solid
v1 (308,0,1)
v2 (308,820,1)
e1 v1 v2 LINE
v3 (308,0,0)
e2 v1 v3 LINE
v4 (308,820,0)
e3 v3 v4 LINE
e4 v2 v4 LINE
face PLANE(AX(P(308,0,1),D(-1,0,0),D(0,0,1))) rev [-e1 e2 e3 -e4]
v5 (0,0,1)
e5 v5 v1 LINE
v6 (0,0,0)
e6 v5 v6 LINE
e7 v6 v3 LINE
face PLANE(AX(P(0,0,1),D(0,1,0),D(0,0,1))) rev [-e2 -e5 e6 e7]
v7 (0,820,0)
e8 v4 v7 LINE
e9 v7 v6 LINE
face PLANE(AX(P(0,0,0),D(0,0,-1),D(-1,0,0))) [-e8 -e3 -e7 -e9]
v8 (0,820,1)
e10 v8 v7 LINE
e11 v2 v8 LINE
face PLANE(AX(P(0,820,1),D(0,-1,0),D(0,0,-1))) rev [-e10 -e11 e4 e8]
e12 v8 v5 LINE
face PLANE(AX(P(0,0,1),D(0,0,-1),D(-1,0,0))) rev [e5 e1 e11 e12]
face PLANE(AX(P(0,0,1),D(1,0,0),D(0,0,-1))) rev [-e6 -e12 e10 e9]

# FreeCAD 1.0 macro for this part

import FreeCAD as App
import Part
import Sketcher

doc = App.newDocument("Part")
params = doc.addObject("Spreadsheet::Sheet", "Params")
for row, (alias, value) in enumerate([
    ("sketch1_width", "308 mm"),
    ("sketch1_height", "820 mm"),
    ("pad1_length", "1 mm"),
], start=1):
    params.set(f"A{row}", alias)
    params.set(f"B{row}", "=" + value)
    params.setAlias(f"B{row}", alias)

body = doc.addObject("PartDesign::Body", "Body")

sketch1 = doc.addObject("Sketcher::SketchObject", "Sketch")
body.addObject(sketch1)
sketch1.AttachmentSupport = (doc.XY_Plane, [""])
sketch1.MapMode = "FlatFace"
sketch1.addGeometry(Part.LineSegment(App.Vector(0, 820, 0), App.Vector(0, 0, 0)), False)
sketch1.addGeometry(Part.LineSegment(App.Vector(0, 0, 0), App.Vector(308, 0, 0)), False)
sketch1.addGeometry(Part.LineSegment(App.Vector(308, 0, 0), App.Vector(308, 820, 0)), False)
sketch1.addGeometry(Part.LineSegment(App.Vector(308, 820, 0), App.Vector(0, 820, 0)), False)
sketch1.addConstraint(Sketcher.Constraint("Coincident", 0, 2, 1, 1))
sketch1.addConstraint(Sketcher.Constraint("Coincident", 1, 2, 2, 1))
sketch1.addConstraint(Sketcher.Constraint("Coincident", 2, 2, 3, 1))
sketch1.addConstraint(Sketcher.Constraint("Coincident", 3, 2, 0, 1))
sketch1.addConstraint(Sketcher.Constraint("Vertical", 0))
sketch1.addConstraint(Sketcher.Constraint("Horizontal", 1))
sketch1.addConstraint(Sketcher.Constraint("Vertical", 2))
sketch1.addConstraint(Sketcher.Constraint("Horizontal", 3))
sketch1.addConstraint(Sketcher.Constraint("Coincident", 0, 2, -1, 1))
sketch1.addConstraint(Sketcher.Constraint("DistanceX", 1, 1, 1, 2, 308.0))
sketch1.addConstraint(Sketcher.Constraint("DistanceY", 0, 2, 0, 1, 820.0))
sketch1.setExpression("Constraints[9]", "Params.sketch1_width")
sketch1.setExpression("Constraints[10]", "Params.sketch1_height")
pad1 = doc.addObject("PartDesign::Pad", "Pad")
body.addObject(pad1)
pad1.Profile = sketch1
pad1.setExpression("Length", "Params.pad1_length")

doc.recompute()
